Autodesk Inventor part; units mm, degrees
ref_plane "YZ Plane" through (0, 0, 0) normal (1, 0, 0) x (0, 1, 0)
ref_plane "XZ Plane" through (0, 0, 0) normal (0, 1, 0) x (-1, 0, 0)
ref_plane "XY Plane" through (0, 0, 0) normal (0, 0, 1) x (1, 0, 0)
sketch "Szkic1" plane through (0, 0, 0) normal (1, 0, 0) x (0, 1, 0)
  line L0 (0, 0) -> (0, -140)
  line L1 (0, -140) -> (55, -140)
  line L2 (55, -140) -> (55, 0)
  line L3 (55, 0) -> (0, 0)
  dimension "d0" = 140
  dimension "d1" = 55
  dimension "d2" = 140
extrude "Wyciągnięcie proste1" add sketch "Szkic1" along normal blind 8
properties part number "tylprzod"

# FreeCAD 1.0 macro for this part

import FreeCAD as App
import Part
import Sketcher

V = App.Vector
Q = App.Units.Quantity

doc = App.newDocument("Part")
body = doc.addObject("PartDesign::Body", "Body")

sketch1 = body.newObject("Sketcher::SketchObject", "Sketch")
sketch1.AttachmentSupport = (doc.getObject("YZ_Plane"), [""])
sketch1.MapMode = "FlatFace"
sketch1.addGeometry([
    Part.LineSegment(V(55, 0, 0), V(0, 0, 0)),
    Part.LineSegment(V(0, 0, 0), V(0, -140, 0)),
    Part.LineSegment(V(0, -140, 0), V(55, -140, 0)),
    Part.LineSegment(V(55, -140, 0), V(55, 0, 0)),
], False)
sketch1.addConstraint([
    Sketcher.Constraint("Coincident", 0, 2, 1, 1),
    Sketcher.Constraint("Coincident", 1, 2, 2, 1),
    Sketcher.Constraint("Coincident", 2, 2, 3, 1),
    Sketcher.Constraint("Coincident", 3, 2, 0, 1),
    Sketcher.Constraint("Horizontal", 0),
    Sketcher.Constraint("Vertical", 1),
    Sketcher.Constraint("Horizontal", 2),
    Sketcher.Constraint("Vertical", 3),
    Sketcher.Constraint("Coincident", 0, 2, -1, 1),
    Sketcher.Constraint("DistanceX", 0, 2, 0, 1, Q("55 mm")),
    Sketcher.Constraint("DistanceY", 1, 2, 1, 1, Q("140 mm")),
])
pad1 = body.newObject("PartDesign::Pad", "Pad")
pad1.Profile = sketch1
pad1.Length = 8

doc.recompute()
